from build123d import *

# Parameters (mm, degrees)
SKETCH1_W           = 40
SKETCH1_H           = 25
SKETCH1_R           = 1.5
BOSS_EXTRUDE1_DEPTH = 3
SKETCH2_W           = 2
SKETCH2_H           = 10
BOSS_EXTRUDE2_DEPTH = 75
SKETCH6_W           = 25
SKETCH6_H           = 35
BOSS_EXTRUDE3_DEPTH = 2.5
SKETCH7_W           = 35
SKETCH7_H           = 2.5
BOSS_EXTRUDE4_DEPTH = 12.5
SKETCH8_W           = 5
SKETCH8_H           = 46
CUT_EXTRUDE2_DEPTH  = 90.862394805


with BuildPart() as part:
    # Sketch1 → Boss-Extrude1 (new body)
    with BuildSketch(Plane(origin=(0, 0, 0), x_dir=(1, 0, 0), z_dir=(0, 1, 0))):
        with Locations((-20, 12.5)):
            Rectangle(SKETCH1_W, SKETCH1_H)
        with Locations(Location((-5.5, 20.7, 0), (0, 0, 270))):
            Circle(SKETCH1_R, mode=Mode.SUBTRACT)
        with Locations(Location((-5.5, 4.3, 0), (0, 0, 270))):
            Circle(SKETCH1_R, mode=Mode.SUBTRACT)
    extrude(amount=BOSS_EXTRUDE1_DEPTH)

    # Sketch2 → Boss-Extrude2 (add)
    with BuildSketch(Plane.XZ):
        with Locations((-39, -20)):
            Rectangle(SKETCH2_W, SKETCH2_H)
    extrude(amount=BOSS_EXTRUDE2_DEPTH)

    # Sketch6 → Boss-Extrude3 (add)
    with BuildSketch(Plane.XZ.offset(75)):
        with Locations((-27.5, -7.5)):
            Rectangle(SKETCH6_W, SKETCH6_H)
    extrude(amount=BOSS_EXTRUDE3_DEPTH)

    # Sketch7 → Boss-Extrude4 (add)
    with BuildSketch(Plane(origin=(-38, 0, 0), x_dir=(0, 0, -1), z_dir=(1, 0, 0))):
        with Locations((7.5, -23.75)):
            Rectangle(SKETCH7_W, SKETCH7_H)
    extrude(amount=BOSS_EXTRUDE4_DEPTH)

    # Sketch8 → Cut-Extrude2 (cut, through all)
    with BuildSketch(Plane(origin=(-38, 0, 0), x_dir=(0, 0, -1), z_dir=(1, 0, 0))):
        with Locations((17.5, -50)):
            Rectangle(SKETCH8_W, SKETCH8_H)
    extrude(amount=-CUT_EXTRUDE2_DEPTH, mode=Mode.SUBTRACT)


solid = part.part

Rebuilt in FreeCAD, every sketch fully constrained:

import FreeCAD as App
import Part
import Sketcher

V = App.Vector


def add_polygon(sketch, points):
    """Adds a closed chain of lines whose ends are joined by coincident constraints."""
    first, n = sketch.GeometryCount, len(points)
    for a, b in zip(points, points[1:] + points[:1]):
        sketch.addGeometry(Part.LineSegment(App.Vector(*a, 0), App.Vector(*b, 0)), False)
    for i in range(n):
        sketch.addConstraint(Sketcher.Constraint("Coincident", first + i, 2, first + (i + 1) % n, 1))

doc = App.newDocument("Part")
body = doc.addObject("PartDesign::Body", "Body")

sketch1 = body.newObject("Sketcher::SketchObject", "Sketch")
sketch1.AttachmentSupport = (doc.getObject("XZ_Plane"), [""])
sketch1.MapMode = "FlatFace"
add_polygon(sketch1, [(-40, -25), (-40, 0), (0, 0), (0, -25)])
sketch1.addGeometry(Part.Circle(V(-5.5, -4.3, 0), V(0, 0, 1), 1.5), False)
sketch1.addGeometry(Part.Circle(V(-5.5, -20.7, 0), V(0, 0, 1), 1.5), False)
sketch1.addConstraint(Sketcher.Constraint("Vertical", 0))
sketch1.addConstraint(Sketcher.Constraint("Horizontal", 1))
sketch1.addConstraint(Sketcher.Constraint("Vertical", 2))
sketch1.addConstraint(Sketcher.Constraint("Horizontal", 3))
sketch1.addConstraint(Sketcher.Constraint("Coincident", 1, 2, -1, 1))
sketch1.addConstraint(Sketcher.Constraint("Equal", 4, 5))
sketch1.addConstraint(Sketcher.Constraint("Vertical", 4, 3, 5, 3))
sketch1.addConstraint(Sketcher.Constraint("Diameter", 4, 3.0))
sketch1.addConstraint(Sketcher.Constraint("DistanceX", 1, 1, 1, 2, 40.0))
sketch1.addConstraint(Sketcher.Constraint("DistanceY", 0, 1, 0, 2, 25.0))
sketch1.addConstraint(Sketcher.Constraint("DistanceX", 4, 3, -1, 1, 5.5))
sketch1.addConstraint(Sketcher.Constraint("DistanceY", 4, 3, -1, 1, 4.3))
sketch1.addConstraint(Sketcher.Constraint("DistanceY", 5, 3, -1, 1, 20.7))
pad1 = body.newObject("PartDesign::Pad", "Pad")
pad1.Profile = sketch1
pad1.Length = 3
pad1.Reversed = True

sketch2 = body.newObject("Sketcher::SketchObject", "Sketch001")
sketch2.AttachmentSupport = (doc.getObject("XZ_Plane"), [""])
sketch2.MapMode = "FlatFace"
add_polygon(sketch2, [(-40, -15), (-40, -25), (-38, -25), (-38, -15)])
sketch2.addConstraint(Sketcher.Constraint("Vertical", 0))
sketch2.addConstraint(Sketcher.Constraint("Horizontal", 1))
sketch2.addConstraint(Sketcher.Constraint("Vertical", 2))
sketch2.addConstraint(Sketcher.Constraint("Horizontal", 3))
sketch2.addConstraint(Sketcher.Constraint("DistanceX", 1, 1, 1, 2, 2.0))
sketch2.addConstraint(Sketcher.Constraint("DistanceY", 0, 2, 0, 1, 10.0))
sketch2.addConstraint(Sketcher.Constraint("DistanceX", 0, 2, -1, 1, 40.0))
sketch2.addConstraint(Sketcher.Constraint("DistanceY", 0, 2, -1, 1, 25.0))
pad2 = body.newObject("PartDesign::Pad", "Pad001")
pad2.Profile = sketch2
pad2.Length = 75

sketch3 = body.newObject("Sketcher::SketchObject", "Sketch002")
sketch3.AttachmentSupport = (doc.getObject("XZ_Plane"), [""])
sketch3.MapMode = "FlatFace"
sketch3.AttachmentOffset = App.Placement(V(0, 0, 75), App.Rotation())
add_polygon(sketch3, [(-40, 10), (-40, -25), (-15, -25), (-15, 10)])
sketch3.addConstraint(Sketcher.Constraint("Vertical", 0))
sketch3.addConstraint(Sketcher.Constraint("Horizontal", 1))
sketch3.addConstraint(Sketcher.Constraint("Vertical", 2))
sketch3.addConstraint(Sketcher.Constraint("Horizontal", 3))
sketch3.addConstraint(Sketcher.Constraint("DistanceX", 1, 1, 1, 2, 25.0))
sketch3.addConstraint(Sketcher.Constraint("DistanceY", 0, 2, 0, 1, 35.0))
sketch3.addConstraint(Sketcher.Constraint("DistanceX", 0, 2, -1, 1, 40.0))
sketch3.addConstraint(Sketcher.Constraint("DistanceY", 0, 2, -1, 1, 25.0))
pad3 = body.newObject("PartDesign::Pad", "Pad002")
pad3.Profile = sketch3
pad3.Length = 2.5

sketch4 = body.newObject("Sketcher::SketchObject", "Sketch003")
sketch4.AttachmentSupport = (doc.getObject("YZ_Plane"), [""])
sketch4.MapMode = "FlatFace"
sketch4.AttachmentOffset = App.Placement(V(0, 0, -38), App.Rotation())
add_polygon(sketch4, [(-22.5, 10), (-25, 10), (-25, -25), (-22.5, -25)])
sketch4.addConstraint(Sketcher.Constraint("Horizontal", 0))
sketch4.addConstraint(Sketcher.Constraint("Vertical", 1))
sketch4.addConstraint(Sketcher.Constraint("Horizontal", 2))
sketch4.addConstraint(Sketcher.Constraint("Vertical", 3))
sketch4.addConstraint(Sketcher.Constraint("DistanceY", 1, 2, 1, 1, 35.0))
sketch4.addConstraint(Sketcher.Constraint("DistanceX", 0, 2, 0, 1, 2.5))
sketch4.addConstraint(Sketcher.Constraint("DistanceX", 0, 2, -1, 1, 25.0))
sketch4.addConstraint(Sketcher.Constraint("DistanceY", -1, 1, 0, 2, 10.0))
pad4 = body.newObject("PartDesign::Pad", "Pad003")
pad4.Profile = sketch4
pad4.Length = 12.5

sketch5 = body.newObject("Sketcher::SketchObject", "Sketch004")
sketch5.AttachmentSupport = (doc.getObject("YZ_Plane"), [""])
sketch5.MapMode = "FlatFace"
sketch5.AttachmentOffset = App.Placement(V(0, 0, -38), App.Rotation())
add_polygon(sketch5, [(-27, -15), (-73, -15), (-73, -20), (-27, -20)])
sketch5.addConstraint(Sketcher.Constraint("Horizontal", 0))
sketch5.addConstraint(Sketcher.Constraint("Vertical", 1))
sketch5.addConstraint(Sketcher.Constraint("Horizontal", 2))
sketch5.addConstraint(Sketcher.Constraint("Vertical", 3))
sketch5.addConstraint(Sketcher.Constraint("DistanceX", 0, 2, 0, 1, 46.0))
sketch5.addConstraint(Sketcher.Constraint("DistanceY", 1, 2, 1, 1, 5.0))
sketch5.addConstraint(Sketcher.Constraint("DistanceX", 0, 2, -1, 1, 73.0))
sketch5.addConstraint(Sketcher.Constraint("DistanceY", 0, 2, -1, 1, 15.0))
pocket1 = body.newObject("PartDesign::Pocket", "Pocket")
pocket1.Profile = sketch5
pocket1.Type = "ThroughAll"

doc.recompute()
